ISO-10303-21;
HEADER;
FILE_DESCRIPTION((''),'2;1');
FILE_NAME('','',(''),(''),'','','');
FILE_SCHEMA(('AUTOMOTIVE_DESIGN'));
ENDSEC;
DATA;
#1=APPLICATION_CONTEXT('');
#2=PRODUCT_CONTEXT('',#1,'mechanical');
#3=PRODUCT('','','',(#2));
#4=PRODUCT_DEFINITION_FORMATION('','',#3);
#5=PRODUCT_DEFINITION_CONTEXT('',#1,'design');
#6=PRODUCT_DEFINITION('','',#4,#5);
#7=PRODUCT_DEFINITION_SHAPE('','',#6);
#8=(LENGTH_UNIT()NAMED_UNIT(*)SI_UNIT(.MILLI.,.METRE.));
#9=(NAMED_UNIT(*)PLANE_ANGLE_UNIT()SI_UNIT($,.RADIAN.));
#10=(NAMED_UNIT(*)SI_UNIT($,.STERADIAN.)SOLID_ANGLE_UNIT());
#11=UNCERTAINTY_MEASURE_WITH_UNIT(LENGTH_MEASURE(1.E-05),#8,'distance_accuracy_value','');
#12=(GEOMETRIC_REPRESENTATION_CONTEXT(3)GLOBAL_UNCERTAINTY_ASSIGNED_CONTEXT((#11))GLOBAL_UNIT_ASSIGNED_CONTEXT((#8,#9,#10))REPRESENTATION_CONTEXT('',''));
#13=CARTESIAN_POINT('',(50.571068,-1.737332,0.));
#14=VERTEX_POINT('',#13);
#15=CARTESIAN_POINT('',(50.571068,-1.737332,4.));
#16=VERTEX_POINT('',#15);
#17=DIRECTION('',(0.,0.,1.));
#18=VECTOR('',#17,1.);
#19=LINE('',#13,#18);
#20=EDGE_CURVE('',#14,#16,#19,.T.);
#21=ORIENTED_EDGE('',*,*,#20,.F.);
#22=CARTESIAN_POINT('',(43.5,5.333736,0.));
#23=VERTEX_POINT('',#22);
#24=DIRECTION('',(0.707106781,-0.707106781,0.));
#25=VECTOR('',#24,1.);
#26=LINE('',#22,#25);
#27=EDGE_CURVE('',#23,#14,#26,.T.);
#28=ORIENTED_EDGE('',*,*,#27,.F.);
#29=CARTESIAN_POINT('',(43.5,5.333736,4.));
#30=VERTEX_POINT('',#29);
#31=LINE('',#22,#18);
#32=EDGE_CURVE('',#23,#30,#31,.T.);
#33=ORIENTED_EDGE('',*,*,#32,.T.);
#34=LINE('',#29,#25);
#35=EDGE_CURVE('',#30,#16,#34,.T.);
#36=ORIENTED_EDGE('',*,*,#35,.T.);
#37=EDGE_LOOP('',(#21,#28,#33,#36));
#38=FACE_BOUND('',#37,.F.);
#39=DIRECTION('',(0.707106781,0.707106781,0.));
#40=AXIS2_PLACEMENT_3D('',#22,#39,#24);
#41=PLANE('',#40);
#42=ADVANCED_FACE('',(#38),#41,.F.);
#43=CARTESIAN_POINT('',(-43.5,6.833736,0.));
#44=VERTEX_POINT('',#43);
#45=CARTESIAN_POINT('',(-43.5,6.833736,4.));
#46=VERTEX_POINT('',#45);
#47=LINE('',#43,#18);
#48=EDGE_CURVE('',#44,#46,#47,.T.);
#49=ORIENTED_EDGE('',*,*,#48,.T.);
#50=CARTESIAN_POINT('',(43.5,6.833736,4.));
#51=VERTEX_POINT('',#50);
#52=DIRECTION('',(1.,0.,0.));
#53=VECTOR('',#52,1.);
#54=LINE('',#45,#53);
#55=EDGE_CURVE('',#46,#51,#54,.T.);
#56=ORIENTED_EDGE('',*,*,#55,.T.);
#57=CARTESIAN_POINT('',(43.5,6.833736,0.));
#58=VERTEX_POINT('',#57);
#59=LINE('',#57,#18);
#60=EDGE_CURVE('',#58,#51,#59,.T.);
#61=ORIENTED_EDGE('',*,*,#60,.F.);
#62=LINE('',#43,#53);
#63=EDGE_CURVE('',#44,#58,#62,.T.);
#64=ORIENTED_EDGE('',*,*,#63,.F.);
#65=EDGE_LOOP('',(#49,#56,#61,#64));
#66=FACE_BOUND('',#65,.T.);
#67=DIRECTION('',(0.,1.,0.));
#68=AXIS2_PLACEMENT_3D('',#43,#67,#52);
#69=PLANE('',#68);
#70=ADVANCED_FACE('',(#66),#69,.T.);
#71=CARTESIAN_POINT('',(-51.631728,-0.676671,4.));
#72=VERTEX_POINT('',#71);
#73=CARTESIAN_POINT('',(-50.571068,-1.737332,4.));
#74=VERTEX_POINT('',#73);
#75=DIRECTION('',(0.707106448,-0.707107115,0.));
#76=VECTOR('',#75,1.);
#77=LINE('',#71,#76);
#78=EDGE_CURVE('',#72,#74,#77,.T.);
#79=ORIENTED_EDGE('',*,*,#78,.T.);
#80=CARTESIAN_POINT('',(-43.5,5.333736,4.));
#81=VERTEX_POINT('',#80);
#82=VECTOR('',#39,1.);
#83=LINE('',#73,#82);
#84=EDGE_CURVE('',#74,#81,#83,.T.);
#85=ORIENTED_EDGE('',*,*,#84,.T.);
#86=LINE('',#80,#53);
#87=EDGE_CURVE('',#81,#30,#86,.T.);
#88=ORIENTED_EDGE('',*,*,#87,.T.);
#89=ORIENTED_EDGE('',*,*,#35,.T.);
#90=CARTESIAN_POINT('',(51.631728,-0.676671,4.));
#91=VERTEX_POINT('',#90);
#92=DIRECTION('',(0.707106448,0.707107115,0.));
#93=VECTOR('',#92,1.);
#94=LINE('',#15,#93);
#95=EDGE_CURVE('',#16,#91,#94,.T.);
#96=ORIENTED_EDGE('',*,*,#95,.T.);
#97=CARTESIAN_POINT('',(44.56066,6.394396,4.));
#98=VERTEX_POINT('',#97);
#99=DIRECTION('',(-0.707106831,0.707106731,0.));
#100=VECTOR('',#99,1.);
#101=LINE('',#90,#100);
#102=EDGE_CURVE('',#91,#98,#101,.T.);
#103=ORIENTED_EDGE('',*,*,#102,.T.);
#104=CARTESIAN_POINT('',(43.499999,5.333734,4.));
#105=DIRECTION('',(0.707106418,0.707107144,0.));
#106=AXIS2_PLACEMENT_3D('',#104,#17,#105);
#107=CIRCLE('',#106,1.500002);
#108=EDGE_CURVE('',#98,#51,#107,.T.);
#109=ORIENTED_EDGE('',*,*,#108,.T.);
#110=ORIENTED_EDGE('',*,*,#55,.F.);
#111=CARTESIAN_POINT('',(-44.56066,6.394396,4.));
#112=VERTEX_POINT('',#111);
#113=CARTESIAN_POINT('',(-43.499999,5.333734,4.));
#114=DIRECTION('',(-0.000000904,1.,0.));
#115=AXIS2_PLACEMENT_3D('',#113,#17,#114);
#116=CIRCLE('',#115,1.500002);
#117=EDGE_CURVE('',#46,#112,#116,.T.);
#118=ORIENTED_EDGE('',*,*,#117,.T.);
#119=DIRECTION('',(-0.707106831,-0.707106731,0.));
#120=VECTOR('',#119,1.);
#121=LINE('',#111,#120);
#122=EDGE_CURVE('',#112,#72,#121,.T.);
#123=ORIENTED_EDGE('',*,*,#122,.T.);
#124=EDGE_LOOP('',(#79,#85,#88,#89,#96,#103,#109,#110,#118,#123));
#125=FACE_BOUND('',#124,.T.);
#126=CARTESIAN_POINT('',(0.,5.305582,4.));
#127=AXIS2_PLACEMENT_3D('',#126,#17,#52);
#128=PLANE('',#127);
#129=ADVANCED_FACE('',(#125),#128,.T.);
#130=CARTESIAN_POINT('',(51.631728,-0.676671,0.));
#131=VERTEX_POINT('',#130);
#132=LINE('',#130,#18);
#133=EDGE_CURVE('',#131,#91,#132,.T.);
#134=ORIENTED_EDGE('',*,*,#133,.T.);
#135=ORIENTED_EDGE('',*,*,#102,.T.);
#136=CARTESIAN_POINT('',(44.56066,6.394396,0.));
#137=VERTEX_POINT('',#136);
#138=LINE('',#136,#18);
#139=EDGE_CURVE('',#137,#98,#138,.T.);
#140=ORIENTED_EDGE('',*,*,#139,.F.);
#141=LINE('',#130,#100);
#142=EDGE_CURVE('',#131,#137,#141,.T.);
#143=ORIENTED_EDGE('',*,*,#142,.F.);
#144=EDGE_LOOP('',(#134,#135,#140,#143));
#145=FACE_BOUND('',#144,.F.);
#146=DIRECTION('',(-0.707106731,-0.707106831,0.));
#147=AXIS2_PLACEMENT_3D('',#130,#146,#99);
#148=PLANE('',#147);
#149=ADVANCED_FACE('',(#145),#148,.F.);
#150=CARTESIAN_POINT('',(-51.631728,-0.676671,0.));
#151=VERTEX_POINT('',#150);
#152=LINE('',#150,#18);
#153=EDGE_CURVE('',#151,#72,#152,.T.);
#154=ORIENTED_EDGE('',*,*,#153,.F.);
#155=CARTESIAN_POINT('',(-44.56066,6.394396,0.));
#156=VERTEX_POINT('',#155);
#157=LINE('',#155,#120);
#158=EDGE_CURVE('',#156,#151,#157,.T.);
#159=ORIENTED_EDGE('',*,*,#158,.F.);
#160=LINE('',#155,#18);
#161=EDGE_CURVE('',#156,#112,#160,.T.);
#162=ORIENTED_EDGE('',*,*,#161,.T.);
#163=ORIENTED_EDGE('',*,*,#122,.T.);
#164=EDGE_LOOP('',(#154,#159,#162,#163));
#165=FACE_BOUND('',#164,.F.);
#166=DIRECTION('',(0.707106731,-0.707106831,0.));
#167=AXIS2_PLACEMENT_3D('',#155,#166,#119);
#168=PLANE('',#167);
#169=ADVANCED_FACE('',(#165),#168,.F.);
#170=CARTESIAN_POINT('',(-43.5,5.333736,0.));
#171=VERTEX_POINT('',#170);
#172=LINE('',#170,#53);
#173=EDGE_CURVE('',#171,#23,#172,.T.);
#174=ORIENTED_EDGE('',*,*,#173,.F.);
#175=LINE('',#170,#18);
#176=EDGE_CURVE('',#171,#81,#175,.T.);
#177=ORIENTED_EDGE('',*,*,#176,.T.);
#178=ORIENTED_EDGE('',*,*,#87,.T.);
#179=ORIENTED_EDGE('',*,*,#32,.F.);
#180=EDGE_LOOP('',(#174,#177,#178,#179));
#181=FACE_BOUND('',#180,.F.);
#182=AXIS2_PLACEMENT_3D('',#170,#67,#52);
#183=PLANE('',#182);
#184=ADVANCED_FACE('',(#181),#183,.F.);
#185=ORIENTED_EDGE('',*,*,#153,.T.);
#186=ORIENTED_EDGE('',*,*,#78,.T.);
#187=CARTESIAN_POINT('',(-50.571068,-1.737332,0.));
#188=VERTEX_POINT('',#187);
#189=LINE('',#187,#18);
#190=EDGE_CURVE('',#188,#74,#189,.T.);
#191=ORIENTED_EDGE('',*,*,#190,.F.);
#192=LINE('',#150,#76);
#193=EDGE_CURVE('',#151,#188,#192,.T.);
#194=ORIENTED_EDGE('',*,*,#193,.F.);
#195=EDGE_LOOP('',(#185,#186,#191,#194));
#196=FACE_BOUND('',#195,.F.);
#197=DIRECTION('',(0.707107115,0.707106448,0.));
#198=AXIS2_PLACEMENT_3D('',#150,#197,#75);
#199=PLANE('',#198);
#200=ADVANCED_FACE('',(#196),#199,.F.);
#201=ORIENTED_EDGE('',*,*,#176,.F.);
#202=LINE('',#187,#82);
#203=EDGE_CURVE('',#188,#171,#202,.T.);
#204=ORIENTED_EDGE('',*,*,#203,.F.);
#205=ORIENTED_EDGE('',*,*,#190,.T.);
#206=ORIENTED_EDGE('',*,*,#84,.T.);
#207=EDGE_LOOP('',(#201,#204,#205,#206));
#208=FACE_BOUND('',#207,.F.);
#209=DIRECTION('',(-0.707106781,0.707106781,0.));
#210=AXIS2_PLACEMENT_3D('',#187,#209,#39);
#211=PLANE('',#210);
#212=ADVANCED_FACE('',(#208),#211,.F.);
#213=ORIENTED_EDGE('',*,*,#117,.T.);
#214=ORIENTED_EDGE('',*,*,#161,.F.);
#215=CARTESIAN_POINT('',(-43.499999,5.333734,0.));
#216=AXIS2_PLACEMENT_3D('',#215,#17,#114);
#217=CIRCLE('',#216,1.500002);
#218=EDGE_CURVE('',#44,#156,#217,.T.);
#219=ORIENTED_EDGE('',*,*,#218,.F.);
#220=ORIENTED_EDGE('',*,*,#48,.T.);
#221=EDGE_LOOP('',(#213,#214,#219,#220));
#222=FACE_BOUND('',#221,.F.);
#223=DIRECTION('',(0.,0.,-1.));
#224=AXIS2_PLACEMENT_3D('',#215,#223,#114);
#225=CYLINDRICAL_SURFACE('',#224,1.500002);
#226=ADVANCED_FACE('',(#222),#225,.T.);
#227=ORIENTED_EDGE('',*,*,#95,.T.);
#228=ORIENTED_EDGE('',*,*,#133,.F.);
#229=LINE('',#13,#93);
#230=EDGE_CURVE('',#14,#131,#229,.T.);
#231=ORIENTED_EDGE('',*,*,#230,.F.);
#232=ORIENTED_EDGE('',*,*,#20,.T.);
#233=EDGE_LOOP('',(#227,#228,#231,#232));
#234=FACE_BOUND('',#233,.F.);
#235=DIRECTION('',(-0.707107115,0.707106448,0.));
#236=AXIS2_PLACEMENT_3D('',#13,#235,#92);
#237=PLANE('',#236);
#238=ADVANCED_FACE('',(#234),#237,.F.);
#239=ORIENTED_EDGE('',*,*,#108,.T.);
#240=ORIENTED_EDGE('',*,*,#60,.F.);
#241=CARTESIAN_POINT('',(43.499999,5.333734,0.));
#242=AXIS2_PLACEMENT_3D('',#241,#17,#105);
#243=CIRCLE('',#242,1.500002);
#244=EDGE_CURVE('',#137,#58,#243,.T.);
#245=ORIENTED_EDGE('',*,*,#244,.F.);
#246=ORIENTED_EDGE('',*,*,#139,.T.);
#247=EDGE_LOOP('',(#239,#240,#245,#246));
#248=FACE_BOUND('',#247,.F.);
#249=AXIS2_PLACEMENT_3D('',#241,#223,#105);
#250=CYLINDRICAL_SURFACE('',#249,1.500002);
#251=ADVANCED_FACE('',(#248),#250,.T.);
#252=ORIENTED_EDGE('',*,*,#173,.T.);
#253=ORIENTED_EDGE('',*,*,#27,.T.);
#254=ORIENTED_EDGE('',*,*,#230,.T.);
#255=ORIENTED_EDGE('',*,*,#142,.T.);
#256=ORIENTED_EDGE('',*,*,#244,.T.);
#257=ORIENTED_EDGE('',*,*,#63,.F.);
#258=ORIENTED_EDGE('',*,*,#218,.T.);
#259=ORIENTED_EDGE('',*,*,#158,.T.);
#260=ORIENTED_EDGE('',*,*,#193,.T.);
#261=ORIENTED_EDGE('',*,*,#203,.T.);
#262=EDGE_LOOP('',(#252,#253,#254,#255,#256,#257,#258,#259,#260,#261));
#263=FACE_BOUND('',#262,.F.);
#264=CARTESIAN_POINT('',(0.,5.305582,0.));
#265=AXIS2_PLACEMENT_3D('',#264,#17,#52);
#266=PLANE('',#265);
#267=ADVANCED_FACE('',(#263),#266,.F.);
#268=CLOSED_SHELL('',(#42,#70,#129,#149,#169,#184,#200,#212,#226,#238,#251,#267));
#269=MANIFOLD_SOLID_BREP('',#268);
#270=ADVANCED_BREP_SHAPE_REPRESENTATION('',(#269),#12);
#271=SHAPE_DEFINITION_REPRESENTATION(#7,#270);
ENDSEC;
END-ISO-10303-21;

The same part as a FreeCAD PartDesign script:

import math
import FreeCAD as App
import Part
import Sketcher
from FreeCAD import Vector

doc = App.newDocument("Part")
params = doc.addObject("Spreadsheet::Sheet", "Params")
for row, (alias, value) in enumerate([
    ("sketch1_width", "87 mm"),
    ("sketch1_length", "10 mm"),
    ("sketch1_length2", "1.5 mm"),
    ("pad1_length", "4 mm"),
], start=1):
    params.set(f"A{row}", alias)
    params.set(f"B{row}", "=" + value)
    params.setAlias(f"B{row}", alias)

body = doc.addObject("PartDesign::Body", "Body")

# Sketch on XY plane
sketch1 = body.newObject("Sketcher::SketchObject", "Sketch")
sketch1.AttachmentSupport = (doc.getObject("XY_Plane"), [""])
sketch1.MapMode = "FlatFace"
sketch1.addGeometry([
    Part.LineSegment(Vector(-43.5, 5.3, 0), Vector(43.5, 5.3, 0)),  # 0
    Part.LineSegment(Vector(43.5, 5.3, 0), Vector(50.6, -1.7, 0)),  # 1
    Part.LineSegment(Vector(50.6, -1.7, 0), Vector(51.6, -0.7, 0)),  # 2
    Part.LineSegment(Vector(51.6, -0.7, 0), Vector(44.6, 6.4, 0)),  # 3
    Part.ArcOfCircle(Part.Circle(Vector(43.5, 5.3, 0), Vector(0, 0, 1), 1.5), math.radians(45), math.radians(90)),  # 4
    Part.LineSegment(Vector(43.5, 6.8, 0), Vector(-43.5, 6.8, 0)),  # 5
    Part.ArcOfCircle(Part.Circle(Vector(-43.5, 5.3, 0), Vector(0, 0, 1), 1.5), math.radians(90), math.radians(135)),  # 6
    Part.LineSegment(Vector(-44.6, 6.4, 0), Vector(-51.6, -0.7, 0)),  # 7
    Part.LineSegment(Vector(-51.6, -0.7, 0), Vector(-50.6, -1.7, 0)),  # 8
    Part.LineSegment(Vector(-50.6, -1.7, 0), Vector(-43.5, 5.3, 0)),  # 9
], False)
sketch1.addConstraint([
    Sketcher.Constraint("Coincident", 0, 2, 1, 1),
    Sketcher.Constraint("Coincident", 1, 2, 2, 1),
    Sketcher.Constraint("Coincident", 2, 2, 3, 1),
    Sketcher.Constraint("Tangent", 3, 2, 4, 1),
    Sketcher.Constraint("Tangent", 4, 2, 5, 1),
    Sketcher.Constraint("Tangent", 5, 2, 6, 1),
    Sketcher.Constraint("Tangent", 6, 2, 7, 1),
    Sketcher.Constraint("Coincident", 7, 2, 8, 1),
    Sketcher.Constraint("Coincident", 8, 2, 9, 1),
    Sketcher.Constraint("Coincident", 9, 2, 0, 1),
    Sketcher.Constraint("Horizontal", 0),
    Sketcher.Constraint("Horizontal", 5),
    Sketcher.Constraint("Coincident", 0, 2, 4, 3),
    Sketcher.Constraint("Coincident", 9, 2, 6, 3),
    Sketcher.Constraint("Symmetric", 3, 2, 6, 2, -2),
    Sketcher.Constraint("Symmetric", 1, 2, 8, 2, -2),
    Sketcher.Constraint("Perpendicular", 1, 2),
    Sketcher.Constraint("Perpendicular", 2, 3),
    Sketcher.Constraint("Perpendicular", 3, 7),
    Sketcher.Constraint("Perpendicular", 7, 8),
    Sketcher.Constraint("DistanceX", 0, 1, 0, 2, 87.0),
    Sketcher.Constraint("Distance", 1, 10.0),
    Sketcher.Constraint("Distance", 2, 1.5),
    Sketcher.Constraint("DistanceY", 2, 2, -1, 1, 0.676671),
])
sketch1.setExpression("Constraints[20]", "Params.sketch1_width")
sketch1.setExpression("Constraints[21]", "Params.sketch1_length")
sketch1.setExpression("Constraints[22]", "Params.sketch1_length2")
pad1 = body.newObject("PartDesign::Pad", "Pad")
pad1.Profile = sketch1
pad1.setExpression("Length", "Params.pad1_length")

doc.recompute()
